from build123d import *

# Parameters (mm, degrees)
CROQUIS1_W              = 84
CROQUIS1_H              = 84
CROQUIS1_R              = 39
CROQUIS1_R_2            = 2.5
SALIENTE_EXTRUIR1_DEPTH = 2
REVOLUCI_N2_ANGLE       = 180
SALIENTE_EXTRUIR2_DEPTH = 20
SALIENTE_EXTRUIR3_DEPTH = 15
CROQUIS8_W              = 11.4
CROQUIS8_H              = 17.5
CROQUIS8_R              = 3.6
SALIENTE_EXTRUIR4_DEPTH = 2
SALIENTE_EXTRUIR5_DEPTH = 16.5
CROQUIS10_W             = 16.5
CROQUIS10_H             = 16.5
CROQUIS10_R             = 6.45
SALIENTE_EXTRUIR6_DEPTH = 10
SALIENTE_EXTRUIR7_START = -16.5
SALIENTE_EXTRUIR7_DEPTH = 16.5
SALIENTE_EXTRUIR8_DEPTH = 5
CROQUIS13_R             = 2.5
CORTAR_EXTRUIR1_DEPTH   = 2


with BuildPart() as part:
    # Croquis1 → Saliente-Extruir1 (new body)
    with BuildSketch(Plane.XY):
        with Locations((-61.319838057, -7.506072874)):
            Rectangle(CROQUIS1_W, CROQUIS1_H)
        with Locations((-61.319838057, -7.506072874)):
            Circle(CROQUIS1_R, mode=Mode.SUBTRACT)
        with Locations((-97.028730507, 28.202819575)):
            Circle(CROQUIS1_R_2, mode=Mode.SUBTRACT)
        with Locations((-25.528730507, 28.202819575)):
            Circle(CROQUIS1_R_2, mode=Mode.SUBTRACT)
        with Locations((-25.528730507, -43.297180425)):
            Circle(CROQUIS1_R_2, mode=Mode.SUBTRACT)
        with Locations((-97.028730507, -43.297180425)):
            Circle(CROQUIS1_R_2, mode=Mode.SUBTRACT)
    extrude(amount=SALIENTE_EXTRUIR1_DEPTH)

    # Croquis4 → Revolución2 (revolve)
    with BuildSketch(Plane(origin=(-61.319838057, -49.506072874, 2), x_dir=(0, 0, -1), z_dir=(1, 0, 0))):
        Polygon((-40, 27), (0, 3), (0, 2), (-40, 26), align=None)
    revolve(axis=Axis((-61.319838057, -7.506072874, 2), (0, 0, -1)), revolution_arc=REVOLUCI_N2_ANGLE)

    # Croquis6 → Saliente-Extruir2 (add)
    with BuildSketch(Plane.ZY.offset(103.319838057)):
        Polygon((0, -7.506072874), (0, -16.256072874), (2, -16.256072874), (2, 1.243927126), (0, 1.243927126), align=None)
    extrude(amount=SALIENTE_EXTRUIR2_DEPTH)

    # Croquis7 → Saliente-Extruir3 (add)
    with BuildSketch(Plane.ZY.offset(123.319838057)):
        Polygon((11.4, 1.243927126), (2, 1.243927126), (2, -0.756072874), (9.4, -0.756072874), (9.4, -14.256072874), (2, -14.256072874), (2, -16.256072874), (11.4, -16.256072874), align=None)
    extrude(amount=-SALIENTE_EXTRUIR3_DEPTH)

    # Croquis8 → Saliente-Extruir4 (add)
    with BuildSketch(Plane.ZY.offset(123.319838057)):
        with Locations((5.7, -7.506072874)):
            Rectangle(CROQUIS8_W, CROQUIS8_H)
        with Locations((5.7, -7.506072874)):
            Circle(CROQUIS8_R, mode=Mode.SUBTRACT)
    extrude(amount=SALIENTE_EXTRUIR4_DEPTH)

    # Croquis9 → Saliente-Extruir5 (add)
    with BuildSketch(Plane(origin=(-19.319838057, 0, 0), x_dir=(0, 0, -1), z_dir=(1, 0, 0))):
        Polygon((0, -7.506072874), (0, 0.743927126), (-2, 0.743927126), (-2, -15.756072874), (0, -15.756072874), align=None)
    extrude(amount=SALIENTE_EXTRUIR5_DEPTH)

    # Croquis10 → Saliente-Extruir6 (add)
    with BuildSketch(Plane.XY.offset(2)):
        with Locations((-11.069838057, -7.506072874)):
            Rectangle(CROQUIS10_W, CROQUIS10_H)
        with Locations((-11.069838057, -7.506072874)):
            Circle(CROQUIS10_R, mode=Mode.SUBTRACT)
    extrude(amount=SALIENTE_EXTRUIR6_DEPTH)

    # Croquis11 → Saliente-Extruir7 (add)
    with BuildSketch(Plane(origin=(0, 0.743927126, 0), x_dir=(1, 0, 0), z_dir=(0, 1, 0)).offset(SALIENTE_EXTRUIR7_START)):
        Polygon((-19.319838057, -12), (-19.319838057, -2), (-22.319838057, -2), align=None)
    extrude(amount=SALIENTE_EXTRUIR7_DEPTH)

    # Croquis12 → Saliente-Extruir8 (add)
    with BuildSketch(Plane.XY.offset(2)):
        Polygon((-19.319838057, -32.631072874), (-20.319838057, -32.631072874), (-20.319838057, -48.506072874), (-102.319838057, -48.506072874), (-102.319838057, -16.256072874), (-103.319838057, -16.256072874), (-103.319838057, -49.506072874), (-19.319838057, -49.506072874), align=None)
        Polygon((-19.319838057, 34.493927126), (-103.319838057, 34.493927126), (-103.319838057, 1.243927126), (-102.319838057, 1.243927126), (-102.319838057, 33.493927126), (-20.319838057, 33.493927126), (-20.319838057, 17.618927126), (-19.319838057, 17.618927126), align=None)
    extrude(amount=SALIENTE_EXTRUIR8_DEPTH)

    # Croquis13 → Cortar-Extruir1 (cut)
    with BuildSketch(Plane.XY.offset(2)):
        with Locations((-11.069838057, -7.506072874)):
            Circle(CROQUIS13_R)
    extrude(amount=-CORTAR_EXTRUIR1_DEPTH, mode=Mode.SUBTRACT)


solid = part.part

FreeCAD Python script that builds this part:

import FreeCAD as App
import Part
import Sketcher
from FreeCAD import Vector

doc = App.newDocument("Part")
params = doc.addObject("Spreadsheet::Sheet", "Params")
for row, (alias, value) in enumerate([
    ("sketch1_diameter", "5 mm"),
    ("sketch1_diameter2", "78 mm"),
    ("sketch1_width", "84 mm"),
    ("pad1_length", "2 mm"),
    ("sketch2_width", "1 mm"),
    ("sketch2_height", "40 mm"),
    ("revolution_angle", "180 deg"),
    ("sketch3_height", "2 mm"),
    ("sketch3_width", "17.5 mm"),
    ("pad2_length", "20 mm"),
    ("sketch4_width", "2 mm"),
    ("sketch4_width2", "13.5 mm"),
    ("sketch4_height", "9.4 mm"),
    ("sketch4_height2", "7.4 mm"),
    ("pad3_length", "15 mm"),
    ("sketch5_diameter", "7.2 mm"),
    ("sketch5_width", "17.5 mm"),
    ("sketch5_height", "11.4 mm"),
    ("pad4_length", "2 mm"),
    ("sketch6_height", "2 mm"),
    ("sketch6_width", "16.5 mm"),
    ("pad5_length", "16.5 mm"),
    ("sketch7_diameter", "12.9 mm"),
    ("sketch7_width", "16.5 mm"),
    ("pad6_length", "10 mm"),
    ("sketch8_width", "3 mm"),
    ("sketch8_height", "10 mm"),
    ("pad7_length", "16.5 mm"),
    ("sketch9_width", "1 mm"),
    ("sketch9_width2", "82 mm"),
    ("sketch9_height", "32.25 mm"),
    ("pad8_length", "5 mm"),
    ("sketch10_diameter", "5 mm"),
    ("pocket1_length", "2 mm"),
], start=1):
    params.set(f"A{row}", alias)
    params.set(f"B{row}", "=" + value)
    params.setAlias(f"B{row}", alias)

body = doc.addObject("PartDesign::Body", "Body")

sketch1 = body.newObject("Sketcher::SketchObject", "Sketch")
sketch1.AttachmentSupport = (doc.getObject("XY_Plane"), [""])
sketch1.MapMode = "FlatFace"
sketch1.addGeometry([
    Part.LineSegment(Vector(-103.319838, 34.493927, 0), Vector(-103.319838, -49.506073, 0)),
    Part.LineSegment(Vector(-103.319838, -49.506073, 0), Vector(-19.319838, -49.506073, 0)),
    Part.LineSegment(Vector(-19.319838, -49.506073, 0), Vector(-19.319838, 34.493927, 0)),
    Part.LineSegment(Vector(-19.319838, 34.493927, 0), Vector(-103.319838, 34.493927, 0)),
    Part.Circle(Vector(-97.028731, -43.29718, 0), Vector(0, 0, 1), 2.5),
    Part.Circle(Vector(-25.528731, -43.29718, 0), Vector(0, 0, 1), 2.5),
    Part.Circle(Vector(-97.028731, 28.20282, 0), Vector(0, 0, 1), 2.5),
    Part.Circle(Vector(-61.319838, -7.506073, 0), Vector(0, 0, 1), 39),
    Part.Circle(Vector(-25.528731, 28.20282, 0), Vector(0, 0, 1), 2.5),
], False)
sketch1.addConstraint([
    Sketcher.Constraint("Coincident", 0, 2, 1, 1),
    Sketcher.Constraint("Coincident", 1, 2, 2, 1),
    Sketcher.Constraint("Coincident", 2, 2, 3, 1),
    Sketcher.Constraint("Coincident", 3, 2, 0, 1),
    Sketcher.Constraint("Vertical", 0),
    Sketcher.Constraint("Horizontal", 1),
    Sketcher.Constraint("Vertical", 2),
    Sketcher.Constraint("Horizontal", 3),
    Sketcher.Constraint("Equal", 4, 5),
    Sketcher.Constraint("Equal", 5, 6),
    Sketcher.Constraint("Equal", 6, 8),
    Sketcher.Constraint("Horizontal", 4, 3, 5, 3),
    Sketcher.Constraint("Horizontal", 6, 3, 8, 3),
    Sketcher.Constraint("Vertical", 4, 3, 6, 3),
    Sketcher.Constraint("Vertical", 5, 3, 8, 3),
    Sketcher.Constraint("Equal", 3, 0),
    Sketcher.Constraint("Diameter", 4, 5.0),
    Sketcher.Constraint("Diameter", 7, 78.0),
    Sketcher.Constraint("DistanceX", 1, 1, 1, 2, 84.0),
    Sketcher.Constraint("DistanceX", 0, 2, 7, 3, 42.0),
    Sketcher.Constraint("DistanceY", 0, 2, 7, 3, 42.0),
    Sketcher.Constraint("DistanceX", 4, 3, 5, 3, 71.5),
    Sketcher.Constraint("DistanceY", 4, 3, 6, 3, 71.5),
    Sketcher.Constraint("DistanceX", 4, 3, -1, 1, 97.028731),
    Sketcher.Constraint("DistanceY", 4, 3, -1, 1, 43.29718),
    Sketcher.Constraint("DistanceX", 7, 3, -1, 1, 61.319838),
    Sketcher.Constraint("DistanceY", 7, 3, -1, 1, 7.506073),
])
sketch1.setExpression("Constraints[16]", "Params.sketch1_diameter")
sketch1.setExpression("Constraints[17]", "Params.sketch1_diameter2")
sketch1.setExpression("Constraints[18]", "Params.sketch1_width")
pad1 = body.newObject("PartDesign::Pad", "Pad")
pad1.Profile = sketch1
pad1.setExpression("Length", "Params.pad1_length")

sketch2 = body.newObject("Sketcher::SketchObject", "Sketch001")
sketch2.AttachmentSupport = (doc.getObject("YZ_Plane"), [""])
sketch2.MapMode = "FlatFace"
sketch2.AttachmentOffset = App.Placement(Vector(0, 0, -61.319838), App.Rotation())
sketch2.addGeometry([
    Part.LineSegment(Vector(-46.506073, 2, 0), Vector(-22.506073, 42, 0)),
    Part.LineSegment(Vector(-22.506073, 42, 0), Vector(-23.506073, 42, 0)),
    Part.LineSegment(Vector(-23.506073, 42, 0), Vector(-47.506073, 2, 0)),
    Part.LineSegment(Vector(-47.506073, 2, 0), Vector(-46.506073, 2, 0)),
], False)
sketch2.addGeometry(Part.LineSegment(Vector(-7.506073, 42, 0), Vector(-7.506073, 2, 0)), True)
sketch2.addConstraint([
    Sketcher.Constraint("Coincident", 0, 2, 1, 1),
    Sketcher.Constraint("Coincident", 1, 2, 2, 1),
    Sketcher.Constraint("Coincident", 2, 2, 3, 1),
    Sketcher.Constraint("Coincident", 3, 2, 0, 1),
    Sketcher.Constraint("Horizontal", 1),
    Sketcher.Constraint("Horizontal", 3),
    Sketcher.Constraint("Vertical", 4),
    Sketcher.Constraint("Parallel", 0, 2),
    Sketcher.Constraint("Horizontal", 1, 2, 4, 1),
    Sketcher.Constraint("Horizontal", 3, 2, 4, 2),
    Sketcher.Constraint("DistanceX", 1, 2, 1, 1, 1.0),
    Sketcher.Constraint("DistanceY", 4, 2, 4, 1, 40.0),
    Sketcher.Constraint("DistanceY", -1, 1, 0, 2, 42.0),
    Sketcher.Constraint("DistanceX", 2, 2, 1, 2, 24.0),
    Sketcher.Constraint("DistanceX", 0, 2, 4, 1, 15.0),
    Sketcher.Constraint("DistanceX", 0, 2, -1, 1, 22.506073),
])
sketch2.setExpression("Constraints[10]", "Params.sketch2_width")
sketch2.setExpression("Constraints[11]", "Params.sketch2_height")
revolution = body.newObject("PartDesign::Revolution", "Revolution")
revolution.Profile = sketch2
revolution.ReferenceAxis = (sketch2, ["Axis0"])
revolution.setExpression("Angle", "Params.revolution_angle")

sketch3 = body.newObject("Sketcher::SketchObject", "Sketch002")
sketch3.AttachmentSupport = (doc.getObject("YZ_Plane"), [""])
sketch3.MapMode = "FlatFace"
sketch3.AttachmentOffset = App.Placement(Vector(0, 0, -103.319838), App.Rotation())
sketch3.addGeometry([
    Part.LineSegment(Vector(-16.256073, 0, 0), Vector(-16.256073, 2, 0)),
    Part.LineSegment(Vector(-16.256073, 2, 0), Vector(1.243927, 2, 0)),
    Part.LineSegment(Vector(1.243927, 2, 0), Vector(1.243927, 0, 0)),
    Part.LineSegment(Vector(1.243927, 0, 0), Vector(-16.256073, 0, 0)),
], False)
sketch3.addConstraint([
    Sketcher.Constraint("Coincident", 0, 2, 1, 1),
    Sketcher.Constraint("Coincident", 1, 2, 2, 1),
    Sketcher.Constraint("Coincident", 2, 2, 3, 1),
    Sketcher.Constraint("Coincident", 3, 2, 0, 1),
    Sketcher.Constraint("Vertical", 0),
    Sketcher.Constraint("Horizontal", 1),
    Sketcher.Constraint("Vertical", 2),
    Sketcher.Constraint("Horizontal", 3),
    Sketcher.Constraint("PointOnObject", 2, 2, -1),
    Sketcher.Constraint("DistanceY", 0, 1, 0, 2, 2.0),
    Sketcher.Constraint("DistanceX", 1, 1, 1, 2, 17.5),
    Sketcher.Constraint("DistanceX", 0, 2, -1, 1, 16.256073),
])
sketch3.setExpression("Constraints[9]", "Params.sketch3_height")
sketch3.setExpression("Constraints[10]", "Params.sketch3_width")
pad2 = body.newObject("PartDesign::Pad", "Pad001")
pad2.Profile = sketch3
pad2.setExpression("Length", "Params.pad2_length")
pad2.Reversed = True

sketch4 = body.newObject("Sketcher::SketchObject", "Sketch003")
sketch4.AttachmentSupport = (doc.getObject("YZ_Plane"), [""])
sketch4.MapMode = "FlatFace"
sketch4.AttachmentOffset = App.Placement(Vector(0, 0, -123.319838), App.Rotation())
sketch4.addGeometry([
    Part.LineSegment(Vector(1.243927, 11.4, 0), Vector(1.243927, 2, 0)),
    Part.LineSegment(Vector(1.243927, 2, 0), Vector(-0.756073, 2, 0)),
    Part.LineSegment(Vector(-0.756073, 2, 0), Vector(-0.756073, 9.4, 0)),
    Part.LineSegment(Vector(-0.756073, 9.4, 0), Vector(-14.256073, 9.4, 0)),
    Part.LineSegment(Vector(-14.256073, 9.4, 0), Vector(-14.256073, 2, 0)),
    Part.LineSegment(Vector(-14.256073, 2, 0), Vector(-16.256073, 2, 0)),
    Part.LineSegment(Vector(-16.256073, 2, 0), Vector(-16.256073, 11.4, 0)),
    Part.LineSegment(Vector(-16.256073, 11.4, 0), Vector(1.243927, 11.4, 0)),
], False)
sketch4.addConstraint([
    Sketcher.Constraint("Coincident", 0, 2, 1, 1),
    Sketcher.Constraint("Coincident", 1, 2, 2, 1),
    Sketcher.Constraint("Coincident", 2, 2, 3, 1),
    Sketcher.Constraint("Coincident", 3, 2, 4, 1),
    Sketcher.Constraint("Coincident", 4, 2, 5, 1),
    Sketcher.Constraint("Coincident", 5, 2, 6, 1),
    Sketcher.Constraint("Coincident", 6, 2, 7, 1),
    Sketcher.Constraint("Coincident", 7, 2, 0, 1),
    Sketcher.Constraint("Vertical", 0),
    Sketcher.Constraint("Horizontal", 1),
    Sketcher.Constraint("Vertical", 2),
    Sketcher.Constraint("Horizontal", 3),
    Sketcher.Constraint("Vertical", 4),
    Sketcher.Constraint("Horizontal", 5),
    Sketcher.Constraint("Vertical", 6),
    Sketcher.Constraint("Horizontal", 7),
    Sketcher.Constraint("Horizontal", 1, 2, 4, 2),
    Sketcher.Constraint("Equal", 1, 5),
    Sketcher.Constraint("DistanceX", 1, 2, 1, 1, 2.0),
    Sketcher.Constraint("DistanceX", 3, 2, 3, 1, 13.5),
    Sketcher.Constraint("DistanceY", 0, 2, 0, 1, 9.4),
    Sketcher.Constraint("DistanceY", 2, 1, 2, 2, 7.4),
    Sketcher.Constraint("DistanceY", -1, 1, 0, 2, 2.0),
    Sketcher.Constraint("DistanceX", -1, 1, 0, 2, 1.243927),
])
sketch4.setExpression("Constraints[18]", "Params.sketch4_width")
sketch4.setExpression("Constraints[19]", "Params.sketch4_width2")
sketch4.setExpression("Constraints[20]", "Params.sketch4_height")
sketch4.setExpression("Constraints[21]", "Params.sketch4_height2")
pad3 = body.newObject("PartDesign::Pad", "Pad002")
pad3.Profile = sketch4
pad3.setExpression("Length", "Params.pad3_length")

sketch5 = body.newObject("Sketcher::SketchObject", "Sketch004")
sketch5.AttachmentSupport = (doc.getObject("YZ_Plane"), [""])
sketch5.MapMode = "FlatFace"
sketch5.AttachmentOffset = App.Placement(Vector(0, 0, -123.319838), App.Rotation())
sketch5.addGeometry([
    Part.LineSegment(Vector(1.243927, 0, 0), Vector(-16.256073, 0, 0)),
    Part.LineSegment(Vector(-16.256073, 0, 0), Vector(-16.256073, 11.4, 0)),
    Part.LineSegment(Vector(-16.256073, 11.4, 0), Vector(1.243927, 11.4, 0)),
    Part.LineSegment(Vector(1.243927, 11.4, 0), Vector(1.243927, 0, 0)),
    Part.Circle(Vector(-7.506073, 5.7, 0), Vector(0, 0, 1), 3.6),
], False)
sketch5.addConstraint([
    Sketcher.Constraint("Coincident", 0, 2, 1, 1),
    Sketcher.Constraint("Coincident", 1, 2, 2, 1),
    Sketcher.Constraint("Coincident", 2, 2, 3, 1),
    Sketcher.Constraint("Coincident", 3, 2, 0, 1),
    Sketcher.Constraint("Horizontal", 0),
    Sketcher.Constraint("Vertical", 1),
    Sketcher.Constraint("Horizontal", 2),
    Sketcher.Constraint("Vertical", 3),
    Sketcher.Constraint("PointOnObject", 0, 2, -1),
    Sketcher.Constraint("Diameter", 4, 7.2),
    Sketcher.Constraint("DistanceX", 0, 2, 0, 1, 17.5),
    Sketcher.Constraint("DistanceY", 1, 1, 1, 2, 11.4),
    Sketcher.Constraint("DistanceY", -1, 1, 4, 3, 5.7),
    Sketcher.Constraint("DistanceX", 0, 2, 4, 3, 8.75),
    Sketcher.Constraint("DistanceX", 4, 3, -1, 1, 7.506073),
])
sketch5.setExpression("Constraints[9]", "Params.sketch5_diameter")
sketch5.setExpression("Constraints[10]", "Params.sketch5_width")
sketch5.setExpression("Constraints[11]", "Params.sketch5_height")
pad4 = body.newObject("PartDesign::Pad", "Pad003")
pad4.Profile = sketch5
pad4.setExpression("Length", "Params.pad4_length")
pad4.Reversed = True

sketch6 = body.newObject("Sketcher::SketchObject", "Sketch005")
sketch6.AttachmentSupport = (doc.getObject("YZ_Plane"), [""])
sketch6.MapMode = "FlatFace"
sketch6.AttachmentOffset = App.Placement(Vector(0, 0, -19.319838), App.Rotation())
sketch6.addGeometry([
    Part.LineSegment(Vector(0.743927, 0, 0), Vector(0.743927, 2, 0)),
    Part.LineSegment(Vector(0.743927, 2, 0), Vector(-15.756073, 2, 0)),
    Part.LineSegment(Vector(-15.756073, 2, 0), Vector(-15.756073, 0, 0)),
    Part.LineSegment(Vector(-15.756073, 0, 0), Vector(0.743927, 0, 0)),
], False)
sketch6.addConstraint([
    Sketcher.Constraint("Coincident", 0, 2, 1, 1),
    Sketcher.Constraint("Coincident", 1, 2, 2, 1),
    Sketcher.Constraint("Coincident", 2, 2, 3, 1),
    Sketcher.Constraint("Coincident", 3, 2, 0, 1),
    Sketcher.Constraint("Vertical", 0),
    Sketcher.Constraint("Horizontal", 1),
    Sketcher.Constraint("Vertical", 2),
    Sketcher.Constraint("Horizontal", 3),
    Sketcher.Constraint("PointOnObject", 2, 2, -1),
    Sketcher.Constraint("DistanceY", 0, 1, 0, 2, 2.0),
    Sketcher.Constraint("DistanceX", 1, 2, 1, 1, 16.5),
    Sketcher.Constraint("DistanceX", -1, 1, 0, 2, 0.743927),
])
sketch6.setExpression("Constraints[9]", "Params.sketch6_height")
sketch6.setExpression("Constraints[10]", "Params.sketch6_width")
pad5 = body.newObject("PartDesign::Pad", "Pad004")
pad5.Profile = sketch6
pad5.setExpression("Length", "Params.pad5_length")

sketch7 = body.newObject("Sketcher::SketchObject", "Sketch006")
sketch7.AttachmentSupport = (doc.getObject("XY_Plane"), [""])
sketch7.MapMode = "FlatFace"
sketch7.AttachmentOffset = App.Placement(Vector(0, 0, 2), App.Rotation())
sketch7.addGeometry([
    Part.LineSegment(Vector(-19.319838, 0.743927, 0), Vector(-19.319838, -15.756073, 0)),
    Part.LineSegment(Vector(-19.319838, -15.756073, 0), Vector(-2.819838, -15.756073, 0)),
    Part.LineSegment(Vector(-2.819838, -15.756073, 0), Vector(-2.819838, 0.743927, 0)),
    Part.LineSegment(Vector(-2.819838, 0.743927, 0), Vector(-19.319838, 0.743927, 0)),
    Part.Circle(Vector(-11.069838, -7.506073, 0), Vector(0, 0, 1), 6.45),
], False)
sketch7.addConstraint([
    Sketcher.Constraint("Coincident", 0, 2, 1, 1),
    Sketcher.Constraint("Coincident", 1, 2, 2, 1),
    Sketcher.Constraint("Coincident", 2, 2, 3, 1),
    Sketcher.Constraint("Coincident", 3, 2, 0, 1),
    Sketcher.Constraint("Vertical", 0),
    Sketcher.Constraint("Horizontal", 1),
    Sketcher.Constraint("Vertical", 2),
    Sketcher.Constraint("Horizontal", 3),
    Sketcher.Constraint("Equal", 3, 0),
    Sketcher.Constraint("Diameter", 4, 12.9),
    Sketcher.Constraint("DistanceX", 1, 1, 1, 2, 16.5),
    Sketcher.Constraint("DistanceX", 0, 2, 4, 3, 8.25),
    Sketcher.Constraint("DistanceY", 0, 2, 4, 3, 8.25),
    Sketcher.Constraint("DistanceX", 4, 3, -1, 1, 11.069838),
    Sketcher.Constraint("DistanceY", 4, 3, -1, 1, 7.506073),
])
sketch7.setExpression("Constraints[9]", "Params.sketch7_diameter")
sketch7.setExpression("Constraints[10]", "Params.sketch7_width")
pad6 = body.newObject("PartDesign::Pad", "Pad005")
pad6.Profile = sketch7
pad6.setExpression("Length", "Params.pad6_length")

sketch8 = body.newObject("Sketcher::SketchObject", "Sketch007")
sketch8.AttachmentSupport = (doc.getObject("XZ_Plane"), [""])
sketch8.MapMode = "FlatFace"
sketch8.AttachmentOffset = App.Placement(Vector(0, 0, 15.756073), App.Rotation())
sketch8.addGeometry([
    Part.LineSegment(Vector(-19.319838, 12, 0), Vector(-19.319838, 2, 0)),
    Part.LineSegment(Vector(-19.319838, 2, 0), Vector(-22.319838, 2, 0)),
    Part.LineSegment(Vector(-22.319838, 2, 0), Vector(-19.319838, 12, 0)),
], False)
sketch8.addConstraint([
    Sketcher.Constraint("Coincident", 0, 2, 1, 1),
    Sketcher.Constraint("Coincident", 1, 2, 2, 1),
    Sketcher.Constraint("Coincident", 2, 2, 0, 1),
    Sketcher.Constraint("Vertical", 0),
    Sketcher.Constraint("Horizontal", 1),
    Sketcher.Constraint("DistanceX", 1, 2, 1, 1, 3.0),
    Sketcher.Constraint("DistanceY", 0, 2, 0, 1, 10.0),
    Sketcher.Constraint("DistanceY", -1, 1, 0, 2, 2.0),
    Sketcher.Constraint("DistanceX", 0, 2, -1, 1, 19.319838),
])
sketch8.setExpression("Constraints[5]", "Params.sketch8_width")
sketch8.setExpression("Constraints[6]", "Params.sketch8_height")
pad7 = body.newObject("PartDesign::Pad", "Pad006")
pad7.Profile = sketch8
pad7.setExpression("Length", "Params.pad7_length")
pad7.Reversed = True

sketch9 = body.newObject("Sketcher::SketchObject", "Sketch008")
sketch9.AttachmentSupport = (doc.getObject("XY_Plane"), [""])
sketch9.MapMode = "FlatFace"
sketch9.AttachmentOffset = App.Placement(Vector(0, 0, 2), App.Rotation())
sketch9.addGeometry([
    Part.LineSegment(Vector(-19.319838, -32.631073, 0), Vector(-20.319838, -32.631073, 0)),
    Part.LineSegment(Vector(-20.319838, -32.631073, 0), Vector(-20.319838, -48.506073, 0)),
    Part.LineSegment(Vector(-20.319838, -48.506073, 0), Vector(-102.319838, -48.506073, 0)),
    Part.LineSegment(Vector(-102.319838, -48.506073, 0), Vector(-102.319838, -16.256073, 0)),
    Part.LineSegment(Vector(-102.319838, -16.256073, 0), Vector(-103.319838, -16.256073, 0)),
    Part.LineSegment(Vector(-103.319838, -16.256073, 0), Vector(-103.319838, -49.506073, 0)),
    Part.LineSegment(Vector(-103.319838, -49.506073, 0), Vector(-19.319838, -49.506073, 0)),
    Part.LineSegment(Vector(-19.319838, -49.506073, 0), Vector(-19.319838, -32.631073, 0)),
    Part.LineSegment(Vector(-19.319838, 34.493927, 0), Vector(-103.319838, 34.493927, 0)),
    Part.LineSegment(Vector(-103.319838, 34.493927, 0), Vector(-103.319838, 1.243927, 0)),
    Part.LineSegment(Vector(-103.319838, 1.243927, 0), Vector(-102.319838, 1.243927, 0)),
    Part.LineSegment(Vector(-102.319838, 1.243927, 0), Vector(-102.319838, 33.493927, 0)),
    Part.LineSegment(Vector(-102.319838, 33.493927, 0), Vector(-20.319838, 33.493927, 0)),
    Part.LineSegment(Vector(-20.319838, 33.493927, 0), Vector(-20.319838, 17.618927, 0)),
    Part.LineSegment(Vector(-20.319838, 17.618927, 0), Vector(-19.319838, 17.618927, 0)),
    Part.LineSegment(Vector(-19.319838, 17.618927, 0), Vector(-19.319838, 34.493927, 0)),
], False)
sketch9.addConstraint([
    Sketcher.Constraint("Coincident", 0, 2, 1, 1),
    Sketcher.Constraint("Coincident", 1, 2, 2, 1),
    Sketcher.Constraint("Coincident", 2, 2, 3, 1),
    Sketcher.Constraint("Coincident", 3, 2, 4, 1),
    Sketcher.Constraint("Coincident", 4, 2, 5, 1),
    Sketcher.Constraint("Coincident", 5, 2, 6, 1),
    Sketcher.Constraint("Coincident", 6, 2, 7, 1),
    Sketcher.Constraint("Coincident", 7, 2, 0, 1),
    Sketcher.Constraint("Coincident", 8, 2, 9, 1),
    Sketcher.Constraint("Coincident", 9, 2, 10, 1),
    Sketcher.Constraint("Coincident", 10, 2, 11, 1),
    Sketcher.Constraint("Coincident", 11, 2, 12, 1),
    Sketcher.Constraint("Coincident", 12, 2, 13, 1),
    Sketcher.Constraint("Coincident", 13, 2, 14, 1),
    Sketcher.Constraint("Coincident", 14, 2, 15, 1),
    Sketcher.Constraint("Coincident", 15, 2, 8, 1),
    Sketcher.Constraint("Horizontal", 0),
    Sketcher.Constraint("Vertical", 1),
    Sketcher.Constraint("Horizontal", 2),
    Sketcher.Constraint("Vertical", 3),
    Sketcher.Constraint("Horizontal", 4),
    Sketcher.Constraint("Vertical", 5),
    Sketcher.Constraint("Horizontal", 6),
    Sketcher.Constraint("Vertical", 7),
    Sketcher.Constraint("Horizontal", 8),
    Sketcher.Constraint("Vertical", 9),
    Sketcher.Constraint("Horizontal", 10),
    Sketcher.Constraint("Vertical", 11),
    Sketcher.Constraint("Horizontal", 12),
    Sketcher.Constraint("Vertical", 13),
    Sketcher.Constraint("Horizontal", 14),
    Sketcher.Constraint("Vertical", 15),
    Sketcher.Constraint("Vertical", 5, 2, 8, 2),
    Sketcher.Constraint("Vertical", 3, 2, 10, 2),
    Sketcher.Constraint("Vertical", 1, 2, 12, 2),
    Sketcher.Constraint("Vertical", 7, 2, 14, 2),
    Sketcher.Constraint("Equal", 0, 4),
    Sketcher.Constraint("Equal", 5, 9),
    Sketcher.Constraint("Equal", 3, 11),
    Sketcher.Constraint("Equal", 1, 13),
    Sketcher.Constraint("DistanceX", 0, 2, 0, 1, 1.0),
    Sketcher.Constraint("DistanceX", 2, 2, 2, 1, 82.0),
    Sketcher.Constraint("DistanceY", 5, 2, 2, 2, 1.0),
    Sketcher.Constraint("DistanceY", 2, 2, 8, 2, 83.0),
    Sketcher.Constraint("DistanceY", 3, 1, 3, 2, 32.25),
    Sketcher.Constraint("DistanceY", 1, 2, 1, 1, 15.875),
    Sketcher.Constraint("DistanceX", 0, 2, -1, 1, 20.319838),
    Sketcher.Constraint("DistanceY", 0, 2, -1, 1, 32.631073),
])
sketch9.setExpression("Constraints[40]", "Params.sketch9_width")
sketch9.setExpression("Constraints[41]", "Params.sketch9_width2")
sketch9.setExpression("Constraints[44]", "Params.sketch9_height")
pad8 = body.newObject("PartDesign::Pad", "Pad007")
pad8.Profile = sketch9
pad8.setExpression("Length", "Params.pad8_length")

sketch10 = body.newObject("Sketcher::SketchObject", "Sketch009")
sketch10.AttachmentSupport = (doc.getObject("XY_Plane"), [""])
sketch10.MapMode = "FlatFace"
sketch10.AttachmentOffset = App.Placement(Vector(0, 0, 2), App.Rotation())
sketch10.addGeometry(Part.Circle(Vector(-11.069838, -7.506073, 0), Vector(0, 0, 1), 2.5), False)
sketch10.addConstraint([
    Sketcher.Constraint("Diameter", 0, 5.0),
    Sketcher.Constraint("DistanceX", 0, 3, -1, 1, 11.069838),
    Sketcher.Constraint("DistanceY", 0, 3, -1, 1, 7.506073),
])
sketch10.setExpression("Constraints[0]", "Params.sketch10_diameter")
pocket1 = body.newObject("PartDesign::Pocket", "Pocket")
pocket1.Profile = sketch10
pocket1.setExpression("Length", "Params.pocket1_length")

doc.recompute()
